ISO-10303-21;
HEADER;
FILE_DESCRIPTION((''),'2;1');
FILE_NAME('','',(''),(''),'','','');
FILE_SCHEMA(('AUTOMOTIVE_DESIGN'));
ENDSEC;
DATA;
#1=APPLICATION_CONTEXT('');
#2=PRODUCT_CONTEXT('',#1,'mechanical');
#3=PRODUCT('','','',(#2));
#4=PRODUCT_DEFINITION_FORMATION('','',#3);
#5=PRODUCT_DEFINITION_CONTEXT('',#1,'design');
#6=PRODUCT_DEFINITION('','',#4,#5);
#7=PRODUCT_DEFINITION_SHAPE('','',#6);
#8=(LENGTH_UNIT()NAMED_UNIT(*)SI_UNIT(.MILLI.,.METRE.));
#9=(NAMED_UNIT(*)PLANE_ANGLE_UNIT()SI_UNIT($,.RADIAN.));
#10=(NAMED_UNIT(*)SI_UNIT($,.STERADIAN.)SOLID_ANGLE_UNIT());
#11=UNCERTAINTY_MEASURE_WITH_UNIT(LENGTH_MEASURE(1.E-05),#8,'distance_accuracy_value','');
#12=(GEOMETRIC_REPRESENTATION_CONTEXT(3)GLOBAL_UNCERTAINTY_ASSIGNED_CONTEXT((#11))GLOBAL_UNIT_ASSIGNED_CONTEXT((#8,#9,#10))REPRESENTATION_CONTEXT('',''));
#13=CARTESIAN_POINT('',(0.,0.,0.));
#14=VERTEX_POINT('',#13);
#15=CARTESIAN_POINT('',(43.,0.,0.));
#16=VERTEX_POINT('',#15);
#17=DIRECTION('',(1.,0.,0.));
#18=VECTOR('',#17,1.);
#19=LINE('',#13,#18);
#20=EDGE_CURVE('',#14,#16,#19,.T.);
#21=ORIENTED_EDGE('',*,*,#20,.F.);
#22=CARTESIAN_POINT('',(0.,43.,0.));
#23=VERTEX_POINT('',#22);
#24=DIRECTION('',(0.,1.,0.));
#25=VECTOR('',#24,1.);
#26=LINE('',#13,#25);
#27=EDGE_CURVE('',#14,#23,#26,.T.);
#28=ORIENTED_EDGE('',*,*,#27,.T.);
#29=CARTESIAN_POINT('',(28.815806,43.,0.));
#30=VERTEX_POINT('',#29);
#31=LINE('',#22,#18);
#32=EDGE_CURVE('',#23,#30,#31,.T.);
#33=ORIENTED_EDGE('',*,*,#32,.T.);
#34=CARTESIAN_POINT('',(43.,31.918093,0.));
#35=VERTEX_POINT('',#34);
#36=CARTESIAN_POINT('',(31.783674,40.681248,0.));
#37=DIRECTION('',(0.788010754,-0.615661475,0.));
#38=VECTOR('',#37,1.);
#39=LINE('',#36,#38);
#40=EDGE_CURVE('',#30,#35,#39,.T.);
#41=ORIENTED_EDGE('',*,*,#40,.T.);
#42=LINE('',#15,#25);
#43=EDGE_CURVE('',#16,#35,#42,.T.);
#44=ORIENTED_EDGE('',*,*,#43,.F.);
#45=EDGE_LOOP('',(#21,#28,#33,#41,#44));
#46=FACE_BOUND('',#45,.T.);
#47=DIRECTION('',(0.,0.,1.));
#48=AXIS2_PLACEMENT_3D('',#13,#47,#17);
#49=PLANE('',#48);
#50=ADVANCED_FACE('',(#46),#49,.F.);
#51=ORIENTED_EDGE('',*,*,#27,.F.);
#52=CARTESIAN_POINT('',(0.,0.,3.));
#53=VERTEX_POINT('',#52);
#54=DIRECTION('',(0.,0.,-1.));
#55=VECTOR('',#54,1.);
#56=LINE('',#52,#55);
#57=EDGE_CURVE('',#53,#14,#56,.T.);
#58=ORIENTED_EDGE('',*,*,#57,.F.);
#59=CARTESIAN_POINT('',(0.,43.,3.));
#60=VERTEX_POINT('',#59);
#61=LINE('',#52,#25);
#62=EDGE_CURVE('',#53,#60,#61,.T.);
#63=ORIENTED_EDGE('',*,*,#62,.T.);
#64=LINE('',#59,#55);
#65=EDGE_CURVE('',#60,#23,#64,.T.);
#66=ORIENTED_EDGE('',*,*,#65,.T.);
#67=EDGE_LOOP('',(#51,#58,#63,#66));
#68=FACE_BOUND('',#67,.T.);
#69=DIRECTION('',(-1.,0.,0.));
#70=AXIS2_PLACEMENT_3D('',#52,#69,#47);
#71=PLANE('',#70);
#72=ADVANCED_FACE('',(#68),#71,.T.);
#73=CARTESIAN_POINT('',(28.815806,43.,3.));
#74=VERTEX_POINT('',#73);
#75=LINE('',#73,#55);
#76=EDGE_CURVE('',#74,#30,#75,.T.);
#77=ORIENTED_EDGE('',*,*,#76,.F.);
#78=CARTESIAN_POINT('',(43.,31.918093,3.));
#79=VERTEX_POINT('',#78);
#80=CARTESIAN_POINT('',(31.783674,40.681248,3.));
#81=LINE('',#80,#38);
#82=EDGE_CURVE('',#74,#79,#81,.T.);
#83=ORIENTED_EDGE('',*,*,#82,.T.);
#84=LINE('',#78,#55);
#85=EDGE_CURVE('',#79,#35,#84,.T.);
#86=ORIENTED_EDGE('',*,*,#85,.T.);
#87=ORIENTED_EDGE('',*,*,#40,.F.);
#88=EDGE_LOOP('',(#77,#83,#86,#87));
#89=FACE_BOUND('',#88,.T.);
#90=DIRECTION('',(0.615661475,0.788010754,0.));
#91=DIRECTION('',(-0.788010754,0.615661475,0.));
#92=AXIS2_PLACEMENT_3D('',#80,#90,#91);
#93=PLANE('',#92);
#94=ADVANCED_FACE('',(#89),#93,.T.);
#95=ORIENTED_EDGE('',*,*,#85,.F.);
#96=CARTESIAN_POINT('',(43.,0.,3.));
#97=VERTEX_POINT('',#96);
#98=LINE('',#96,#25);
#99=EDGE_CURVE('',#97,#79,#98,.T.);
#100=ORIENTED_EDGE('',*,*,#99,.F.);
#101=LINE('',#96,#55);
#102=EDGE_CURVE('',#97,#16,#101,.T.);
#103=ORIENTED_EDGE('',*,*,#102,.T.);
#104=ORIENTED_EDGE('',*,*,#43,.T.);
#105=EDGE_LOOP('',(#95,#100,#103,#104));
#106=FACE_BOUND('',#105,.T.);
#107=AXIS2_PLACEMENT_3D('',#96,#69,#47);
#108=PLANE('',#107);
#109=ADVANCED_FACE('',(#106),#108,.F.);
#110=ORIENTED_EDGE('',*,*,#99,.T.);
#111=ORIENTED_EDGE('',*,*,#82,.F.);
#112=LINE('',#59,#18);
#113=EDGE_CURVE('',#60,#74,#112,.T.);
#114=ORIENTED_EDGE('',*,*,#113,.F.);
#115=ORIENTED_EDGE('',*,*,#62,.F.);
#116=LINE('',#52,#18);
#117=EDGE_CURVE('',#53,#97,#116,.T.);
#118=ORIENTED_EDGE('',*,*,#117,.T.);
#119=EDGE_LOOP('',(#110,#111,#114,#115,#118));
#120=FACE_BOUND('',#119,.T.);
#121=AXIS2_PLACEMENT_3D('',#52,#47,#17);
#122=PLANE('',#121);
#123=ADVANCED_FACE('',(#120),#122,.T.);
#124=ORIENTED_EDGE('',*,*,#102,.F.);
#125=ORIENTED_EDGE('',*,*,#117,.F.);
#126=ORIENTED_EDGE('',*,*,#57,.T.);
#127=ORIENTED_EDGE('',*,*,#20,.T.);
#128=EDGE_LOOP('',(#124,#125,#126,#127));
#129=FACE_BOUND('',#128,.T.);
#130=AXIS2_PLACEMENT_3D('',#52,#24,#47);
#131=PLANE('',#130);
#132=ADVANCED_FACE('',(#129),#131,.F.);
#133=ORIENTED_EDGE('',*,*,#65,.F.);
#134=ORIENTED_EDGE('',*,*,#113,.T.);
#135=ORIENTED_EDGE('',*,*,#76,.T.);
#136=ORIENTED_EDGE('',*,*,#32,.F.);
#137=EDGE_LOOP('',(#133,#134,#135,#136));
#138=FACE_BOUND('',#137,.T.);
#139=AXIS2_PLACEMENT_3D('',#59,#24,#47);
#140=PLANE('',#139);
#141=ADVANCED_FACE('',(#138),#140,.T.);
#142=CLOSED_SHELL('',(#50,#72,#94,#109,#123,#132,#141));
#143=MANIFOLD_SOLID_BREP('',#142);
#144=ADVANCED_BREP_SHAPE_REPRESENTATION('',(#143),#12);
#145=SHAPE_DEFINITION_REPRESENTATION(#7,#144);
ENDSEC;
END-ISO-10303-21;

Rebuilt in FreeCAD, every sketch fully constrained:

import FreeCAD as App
import Part
import Sketcher
from FreeCAD import Vector
Q = App.Units.Quantity

doc = App.newDocument("Part")
body = doc.addObject("PartDesign::Body", "Body")

# Sketch on XY plane
sketch1 = doc.addObject("Sketcher::SketchObject", "Sketch")
body.addObject(sketch1)
sketch1.AttachmentSupport = (doc.XY_Plane, [""])
sketch1.MapMode = "FlatFace"
sketch1.addGeometry([
    Part.LineSegment(Vector(43, 32, 0), Vector(29, 43, 0)),  # 0
    Part.LineSegment(Vector(29, 43, 0), Vector(0, 43, 0)),  # 1
    Part.LineSegment(Vector(0, 43, 0), Vector(0, 0, 0)),  # 2
    Part.LineSegment(Vector(0, 0, 0), Vector(43, 0, 0)),  # 3
    Part.LineSegment(Vector(43, 0, 0), Vector(43, 32, 0)),  # 4
], False)
sketch1.addConstraint([
    Sketcher.Constraint("Coincident", 0, 2, 1, 1),
    Sketcher.Constraint("Coincident", 1, 2, 2, 1),
    Sketcher.Constraint("Coincident", 2, 2, 3, 1),
    Sketcher.Constraint("Coincident", 3, 2, 4, 1),
    Sketcher.Constraint("Coincident", 4, 2, 0, 1),
    Sketcher.Constraint("Horizontal", 1),
    Sketcher.Constraint("Vertical", 2),
    Sketcher.Constraint("Horizontal", 3),
    Sketcher.Constraint("Vertical", 4),
    Sketcher.Constraint("Coincident", 2, 2, -1, 1),
    Sketcher.Constraint("Equal", 3, 2),
    Sketcher.Constraint("DistanceX", 3, 1, 3, 2, Q("43 mm")),
    Sketcher.Constraint("Angle", 0, Q("142 deg")),
    Sketcher.Constraint("Distance", 0, Q("18 mm")),
])
pad1 = doc.addObject("PartDesign::Pad", "Pad")
body.addObject(pad1)
pad1.Profile = sketch1
pad1.Length = 3

doc.recompute()
